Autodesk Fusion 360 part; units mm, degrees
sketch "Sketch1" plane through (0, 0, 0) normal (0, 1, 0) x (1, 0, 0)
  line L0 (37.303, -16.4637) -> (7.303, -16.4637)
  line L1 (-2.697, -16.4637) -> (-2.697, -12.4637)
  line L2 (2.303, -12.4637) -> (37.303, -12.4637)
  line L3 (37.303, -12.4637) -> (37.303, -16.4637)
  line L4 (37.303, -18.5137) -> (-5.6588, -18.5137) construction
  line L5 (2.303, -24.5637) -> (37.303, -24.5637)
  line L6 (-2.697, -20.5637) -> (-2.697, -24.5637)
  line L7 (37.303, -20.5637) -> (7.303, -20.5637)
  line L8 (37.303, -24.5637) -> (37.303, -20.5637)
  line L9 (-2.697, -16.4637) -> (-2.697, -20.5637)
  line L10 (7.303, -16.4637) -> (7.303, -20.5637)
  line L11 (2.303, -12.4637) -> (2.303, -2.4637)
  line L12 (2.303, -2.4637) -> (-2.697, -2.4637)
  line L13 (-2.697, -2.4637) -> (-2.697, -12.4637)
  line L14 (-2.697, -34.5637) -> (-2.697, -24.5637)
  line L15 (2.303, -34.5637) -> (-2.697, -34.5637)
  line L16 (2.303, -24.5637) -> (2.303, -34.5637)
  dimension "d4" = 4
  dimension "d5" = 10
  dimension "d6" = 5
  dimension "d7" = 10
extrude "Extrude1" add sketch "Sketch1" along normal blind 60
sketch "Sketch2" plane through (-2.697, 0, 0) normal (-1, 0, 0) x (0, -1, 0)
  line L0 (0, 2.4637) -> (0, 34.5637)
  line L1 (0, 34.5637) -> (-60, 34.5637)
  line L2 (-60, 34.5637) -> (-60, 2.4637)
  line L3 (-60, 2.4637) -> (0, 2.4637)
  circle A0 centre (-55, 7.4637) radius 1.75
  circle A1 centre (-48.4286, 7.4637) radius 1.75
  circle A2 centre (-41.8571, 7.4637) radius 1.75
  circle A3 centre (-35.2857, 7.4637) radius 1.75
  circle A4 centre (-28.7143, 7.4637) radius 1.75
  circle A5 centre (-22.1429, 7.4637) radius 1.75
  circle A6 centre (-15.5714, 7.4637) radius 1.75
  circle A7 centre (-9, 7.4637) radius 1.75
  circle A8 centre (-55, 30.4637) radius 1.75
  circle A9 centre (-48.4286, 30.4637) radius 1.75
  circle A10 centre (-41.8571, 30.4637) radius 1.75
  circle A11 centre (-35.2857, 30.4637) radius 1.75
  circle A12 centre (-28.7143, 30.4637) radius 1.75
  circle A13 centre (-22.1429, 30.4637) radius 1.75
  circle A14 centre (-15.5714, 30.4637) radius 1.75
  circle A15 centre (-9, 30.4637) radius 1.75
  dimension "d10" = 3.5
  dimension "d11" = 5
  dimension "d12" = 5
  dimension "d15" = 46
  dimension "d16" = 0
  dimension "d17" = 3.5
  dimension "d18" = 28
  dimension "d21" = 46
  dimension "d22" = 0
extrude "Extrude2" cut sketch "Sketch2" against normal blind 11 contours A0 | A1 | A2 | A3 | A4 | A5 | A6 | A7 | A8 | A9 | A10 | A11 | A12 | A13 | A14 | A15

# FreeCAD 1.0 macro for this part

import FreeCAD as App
import Part
import Sketcher
from FreeCAD import Vector


def add_polygon(sketch, points):
    """Adds a closed chain of lines whose ends are joined by coincident constraints."""
    first, n = sketch.GeometryCount, len(points)
    for a, b in zip(points, points[1:] + points[:1]):
        sketch.addGeometry(Part.LineSegment(App.Vector(*a, 0), App.Vector(*b, 0)), False)
    for i in range(n):
        sketch.addConstraint(Sketcher.Constraint("Coincident", first + i, 2, first + (i + 1) % n, 1))

doc = App.newDocument("Part")
body = doc.addObject("PartDesign::Body", "Body")

sketch1 = body.newObject("Sketcher::SketchObject", "Sketch")
sketch1.AttachmentSupport = (doc.getObject("XZ_Plane"), [""])
sketch1.MapMode = "FlatFace"
add_polygon(sketch1, [(7.3, 16.5), (37.3, 16.5), (37.3, 12.5), (2.3, 12.5), (2.3, 2.5), (-2.7, 2.5), (-2.7, 34.6), (2.3, 34.6), (2.3, 24.6), (37.3, 24.6), (37.3, 20.6), (7.3, 20.6)])
sketch1.addConstraint([
    Sketcher.Constraint("Horizontal", 0),
    Sketcher.Constraint("Vertical", 1),
    Sketcher.Constraint("Horizontal", 2),
    Sketcher.Constraint("Vertical", 3),
    Sketcher.Constraint("Horizontal", 4),
    Sketcher.Constraint("Vertical", 5),
    Sketcher.Constraint("Horizontal", 6),
    Sketcher.Constraint("Vertical", 7),
    Sketcher.Constraint("Horizontal", 8),
    Sketcher.Constraint("Vertical", 9),
    Sketcher.Constraint("Horizontal", 10),
    Sketcher.Constraint("Vertical", 11),
    Sketcher.Constraint("Vertical", 3, 2, 6, 2),
    Sketcher.Constraint("Vertical", 1, 2, 8, 2),
    Sketcher.Constraint("Equal", 3, 7),
    Sketcher.Constraint("Equal", 1, 9),
    Sketcher.Constraint("DistanceX", 4, 2, 4, 1, 5.0),
    Sketcher.Constraint("DistanceY", 1, 2, 1, 1, 4.0),
    Sketcher.Constraint("DistanceY", 3, 2, 3, 1, 10.0),
    Sketcher.Constraint("DistanceX", 7, 2, 10, 2, 5.0),
    Sketcher.Constraint("DistanceX", 0, 1, 0, 2, 30.0),
    Sketcher.Constraint("DistanceY", 5, 1, 5, 2, 32.1),
    Sketcher.Constraint("DistanceX", -1, 1, 0, 2, 37.303),
    Sketcher.Constraint("DistanceY", -1, 1, 0, 2, 16.4637),
])
pad1 = body.newObject("PartDesign::Pad", "Pad")
pad1.Profile = sketch1
pad1.Length = 60
pad1.Reversed = True

sketch2 = body.newObject("Sketcher::SketchObject", "Sketch001")
sketch2.AttachmentSupport = (doc.getObject("YZ_Plane"), [""])
sketch2.MapMode = "FlatFace"
sketch2.AttachmentOffset = App.Placement(Vector(0, 0, -2.697), App.Rotation())
sketch2.addGeometry([
    Part.Circle(Vector(55, 7.5, 0), Vector(0, 0, 1), 1.8),
    Part.Circle(Vector(48.4, 7.5, 0), Vector(0, 0, 1), 1.8),
    Part.Circle(Vector(41.9, 7.5, 0), Vector(0, 0, 1), 1.8),
    Part.Circle(Vector(35.3, 7.5, 0), Vector(0, 0, 1), 1.8),
    Part.Circle(Vector(28.7, 7.5, 0), Vector(0, 0, 1), 1.8),
    Part.Circle(Vector(22.1, 7.5, 0), Vector(0, 0, 1), 1.8),
    Part.Circle(Vector(15.6, 7.5, 0), Vector(0, 0, 1), 1.8),
    Part.Circle(Vector(9, 7.5, 0), Vector(0, 0, 1), 1.8),
    Part.Circle(Vector(55, 30.5, 0), Vector(0, 0, 1), 1.8),
    Part.Circle(Vector(48.4, 30.5, 0), Vector(0, 0, 1), 1.8),
    Part.Circle(Vector(41.9, 30.5, 0), Vector(0, 0, 1), 1.8),
    Part.Circle(Vector(35.3, 30.5, 0), Vector(0, 0, 1), 1.8),
    Part.Circle(Vector(28.7, 30.5, 0), Vector(0, 0, 1), 1.8),
    Part.Circle(Vector(22.1, 30.5, 0), Vector(0, 0, 1), 1.8),
    Part.Circle(Vector(15.6, 30.5, 0), Vector(0, 0, 1), 1.8),
    Part.Circle(Vector(9, 30.5, 0), Vector(0, 0, 1), 1.8),
], False)
sketch2.addConstraint([
    Sketcher.Constraint("Equal", 0, 1),
    Sketcher.Constraint("Equal", 1, 2),
    Sketcher.Constraint("Equal", 2, 3),
    Sketcher.Constraint("Equal", 3, 4),
    Sketcher.Constraint("Equal", 4, 5),
    Sketcher.Constraint("Equal", 5, 6),
    Sketcher.Constraint("Equal", 6, 7),
    Sketcher.Constraint("Equal", 7, 8),
    Sketcher.Constraint("Equal", 8, 9),
    Sketcher.Constraint("Equal", 9, 10),
    Sketcher.Constraint("Equal", 10, 11),
    Sketcher.Constraint("Equal", 11, 12),
    Sketcher.Constraint("Equal", 12, 13),
    Sketcher.Constraint("Equal", 13, 14),
    Sketcher.Constraint("Equal", 14, 15),
    Sketcher.Constraint("Horizontal", 0, 3, 1, 3),
    Sketcher.Constraint("Horizontal", 1, 3, 2, 3),
    Sketcher.Constraint("Horizontal", 2, 3, 3, 3),
    Sketcher.Constraint("Horizontal", 3, 3, 4, 3),
    Sketcher.Constraint("Horizontal", 4, 3, 5, 3),
    Sketcher.Constraint("Horizontal", 5, 3, 6, 3),
    Sketcher.Constraint("Horizontal", 6, 3, 7, 3),
    Sketcher.Constraint("Horizontal", 8, 3, 9, 3),
    Sketcher.Constraint("Horizontal", 9, 3, 10, 3),
    Sketcher.Constraint("Horizontal", 10, 3, 11, 3),
    Sketcher.Constraint("Horizontal", 11, 3, 12, 3),
    Sketcher.Constraint("Horizontal", 12, 3, 13, 3),
    Sketcher.Constraint("Horizontal", 13, 3, 14, 3),
    Sketcher.Constraint("Horizontal", 14, 3, 15, 3),
    Sketcher.Constraint("Vertical", 0, 3, 8, 3),
    Sketcher.Constraint("Vertical", 1, 3, 9, 3),
    Sketcher.Constraint("Vertical", 2, 3, 10, 3),
    Sketcher.Constraint("Vertical", 3, 3, 11, 3),
    Sketcher.Constraint("Vertical", 4, 3, 12, 3),
    Sketcher.Constraint("Vertical", 5, 3, 13, 3),
    Sketcher.Constraint("Vertical", 6, 3, 14, 3),
    Sketcher.Constraint("Vertical", 7, 3, 15, 3),
    Sketcher.Constraint("Diameter", 0, 3.5),
    Sketcher.Constraint("DistanceX", -1, 1, 0, 3, 55.0),
    Sketcher.Constraint("DistanceX", -1, 1, 7, 3, 9.0),
    Sketcher.Constraint("DistanceY", 0, 3, 8, 3, 23.0),
    Sketcher.Constraint("DistanceX", -1, 1, 2, 3, 41.857),
    Sketcher.Constraint("DistanceX", -1, 1, 5, 3, 22.143),
    Sketcher.Constraint("DistanceX", 3, 3, 1, 3, 13.143),
    Sketcher.Constraint("DistanceX", 6, 3, 4, 3, 13.143),
    Sketcher.Constraint("DistanceY", -1, 1, 0, 3, 7.4637),
    Sketcher.Constraint("DistanceX", -1, 1, 1, 3, 48.4286),
    Sketcher.Constraint("DistanceX", -1, 1, 4, 3, 28.7143),
])
pocket1 = body.newObject("PartDesign::Pocket", "Pocket")
pocket1.Profile = sketch2
pocket1.Length = 11
pocket1.Reversed = True

doc.recompute()
